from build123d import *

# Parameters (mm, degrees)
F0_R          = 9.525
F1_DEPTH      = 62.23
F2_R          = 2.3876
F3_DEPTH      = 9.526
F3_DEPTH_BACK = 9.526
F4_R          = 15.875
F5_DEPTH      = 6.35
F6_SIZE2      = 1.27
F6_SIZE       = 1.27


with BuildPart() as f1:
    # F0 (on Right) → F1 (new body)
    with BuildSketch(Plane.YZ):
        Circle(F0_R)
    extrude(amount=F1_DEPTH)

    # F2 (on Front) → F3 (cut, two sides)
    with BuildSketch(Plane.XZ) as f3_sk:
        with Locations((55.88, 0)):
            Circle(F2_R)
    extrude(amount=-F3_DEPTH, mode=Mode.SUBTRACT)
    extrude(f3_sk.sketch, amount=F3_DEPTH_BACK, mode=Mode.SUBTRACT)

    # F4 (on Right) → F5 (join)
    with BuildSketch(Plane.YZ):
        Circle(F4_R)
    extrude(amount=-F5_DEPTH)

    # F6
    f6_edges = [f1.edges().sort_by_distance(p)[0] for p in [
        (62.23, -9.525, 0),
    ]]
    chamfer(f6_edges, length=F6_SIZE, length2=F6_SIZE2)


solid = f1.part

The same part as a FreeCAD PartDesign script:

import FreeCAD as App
import Part
import Sketcher

V = App.Vector
Q = App.Units.Quantity


def edges_at(feature, points):
    """Names of the edges that pass closest to the given points."""
    edges = feature.Shape.Edges
    near = lambda p: min(range(len(edges)), key=lambda i: edges[i].distToShape(Part.Vertex(*p))[0])
    return sorted({f"Edge{near(p) + 1}" for p in points})

doc = App.newDocument("Part")
body = doc.addObject("PartDesign::Body", "Body")

sketch1 = doc.addObject("Sketcher::SketchObject", "Sketch")
body.addObject(sketch1)
sketch1.AttachmentSupport = (doc.YZ_Plane, [""])
sketch1.MapMode = "FlatFace"
sketch1.addGeometry(Part.Circle(V(0, 0, 0), V(0, 0, 1), 10), False)
sketch1.addConstraint([
    Sketcher.Constraint("Coincident", 0, 3, -1, 1),
    Sketcher.Constraint("Diameter", 0, Q("0.75 in")),
])
pad1 = doc.addObject("PartDesign::Pad", "Pad")
body.addObject(pad1)
pad1.Profile = sketch1
pad1.Length = Q("2.45 in")

sketch2 = doc.addObject("Sketcher::SketchObject", "Sketch001")
body.addObject(sketch2)
sketch2.AttachmentSupport = (doc.XZ_Plane, [""])
sketch2.MapMode = "FlatFace"
sketch2.addGeometry(Part.Circle(V(55.9, 0, 0), V(0, 0, 1), 2.4), False)
sketch2.addConstraint([
    Sketcher.Constraint("PointOnObject", 0, 3, -1),
    Sketcher.Constraint("Diameter", 0, Q("0.188 in")),
    Sketcher.Constraint("DistanceX", -1, 1, 0, 3, Q("2.2 in")),
])
pocket1 = doc.addObject("PartDesign::Pocket", "Pocket")
body.addObject(pocket1)
pocket1.Profile = sketch2
pocket1.Type = "ThroughAll"
pocket1.Midplane = True

sketch3 = doc.addObject("Sketcher::SketchObject", "Sketch002")
body.addObject(sketch3)
sketch3.AttachmentSupport = (doc.YZ_Plane, [""])
sketch3.MapMode = "FlatFace"
sketch3.addGeometry(Part.Circle(V(0, 0, 0), V(0, 0, 1), 16), False)
sketch3.addConstraint([
    Sketcher.Constraint("Coincident", 0, 3, -1, 1),
    Sketcher.Constraint("Diameter", 0, Q("1.25 in")),
])
pad2 = doc.addObject("PartDesign::Pad", "Pad001")
body.addObject(pad2)
pad2.Profile = sketch3
pad2.Length = Q("0.25 in")
pad2.Reversed = True
doc.recompute()

chamfer = doc.addObject("PartDesign::Chamfer", "Chamfer")
body.addObject(chamfer)
chamfer.Base = (pad2, edges_at(pad2, [(62.23, -9.525, 0)]))
chamfer.ChamferType = "Two distances"
chamfer.Size = Q("0.05 in")
chamfer.Size2 = Q("0.05 in")

doc.recompute()
